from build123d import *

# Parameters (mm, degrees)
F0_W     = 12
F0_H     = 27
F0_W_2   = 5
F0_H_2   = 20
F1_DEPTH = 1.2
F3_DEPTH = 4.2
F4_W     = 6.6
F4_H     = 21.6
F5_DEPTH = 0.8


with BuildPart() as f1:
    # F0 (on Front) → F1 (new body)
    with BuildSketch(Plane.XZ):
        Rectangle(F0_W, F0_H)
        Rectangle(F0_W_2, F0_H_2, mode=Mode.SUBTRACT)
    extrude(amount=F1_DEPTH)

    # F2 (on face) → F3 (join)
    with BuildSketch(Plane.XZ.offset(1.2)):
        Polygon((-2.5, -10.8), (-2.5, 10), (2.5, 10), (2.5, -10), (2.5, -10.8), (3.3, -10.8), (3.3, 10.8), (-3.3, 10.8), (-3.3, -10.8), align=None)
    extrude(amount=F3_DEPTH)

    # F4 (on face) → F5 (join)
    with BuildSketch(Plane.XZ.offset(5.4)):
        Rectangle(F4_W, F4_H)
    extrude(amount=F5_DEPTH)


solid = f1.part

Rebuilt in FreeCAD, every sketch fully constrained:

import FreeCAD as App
import Part
import Sketcher

V = App.Vector
Q = App.Units.Quantity


def add_polygon(sketch, points):
    """Adds a closed chain of lines whose ends are joined by coincident constraints."""
    first, n = sketch.GeometryCount, len(points)
    for a, b in zip(points, points[1:] + points[:1]):
        sketch.addGeometry(Part.LineSegment(App.Vector(*a, 0), App.Vector(*b, 0)), False)
    for i in range(n):
        sketch.addConstraint(Sketcher.Constraint("Coincident", first + i, 2, first + (i + 1) % n, 1))

doc = App.newDocument("Part")
body = doc.addObject("PartDesign::Body", "Body")

# Sketch on XZ plane
sketch1 = body.newObject("Sketcher::SketchObject", "Sketch")
sketch1.AttachmentSupport = (doc.getObject("XZ_Plane"), [""])
sketch1.MapMode = "FlatFace"
add_polygon(sketch1, [(-6, 14), (-6, -14), (6, -14), (6, 14)])  # lines 0-3
add_polygon(sketch1, [(2, -10), (-2, -10), (-2, 10), (2, 10)])  # lines 4-7
sketch1.addConstraint([
    Sketcher.Constraint("Vertical", 0),
    Sketcher.Constraint("Horizontal", 1),
    Sketcher.Constraint("Vertical", 2),
    Sketcher.Constraint("Horizontal", 3),
    Sketcher.Constraint("Horizontal", 4),
    Sketcher.Constraint("Vertical", 5),
    Sketcher.Constraint("Horizontal", 6),
    Sketcher.Constraint("Vertical", 7),
    Sketcher.Constraint("Symmetric", 0, 2, 2, 2, -1, 1),
    Sketcher.Constraint("Symmetric", 4, 2, 6, 2, -1, 1),
    Sketcher.Constraint("DistanceX", 1, 1, 1, 2, Q("12 mm")),
    Sketcher.Constraint("DistanceX", 4, 2, 4, 1, Q("5 mm")),
    Sketcher.Constraint("DistanceY", 0, 2, 0, 1, Q("27 mm")),
    Sketcher.Constraint("DistanceY", 5, 1, 5, 2, Q("20 mm")),
])
pad1 = body.newObject("PartDesign::Pad", "Pad")
pad1.Profile = sketch1
pad1.Length = 1.2

# Sketch on XZ plane
sketch2 = body.newObject("Sketcher::SketchObject", "Sketch001")
sketch2.AttachmentSupport = (doc.getObject("XZ_Plane"), [""])
sketch2.MapMode = "FlatFace"
sketch2.AttachmentOffset = App.Placement(V(0, 0, 1.2), App.Rotation())
add_polygon(sketch2, [(-2.5, -10.8), (-2.5, 10), (2.5, 10), (2.5, -10.8), (3.3, -10.8), (3.3, 10.8), (-3.3, 10.8), (-3.3, -10.8)])  # lines 0-7
sketch2.addConstraint([
    Sketcher.Constraint("Vertical", 0),
    Sketcher.Constraint("Horizontal", 1),
    Sketcher.Constraint("Vertical", 2),
    Sketcher.Constraint("Horizontal", 3),
    Sketcher.Constraint("Vertical", 4),
    Sketcher.Constraint("Horizontal", 5),
    Sketcher.Constraint("Vertical", 6),
    Sketcher.Constraint("Horizontal", 7),
    Sketcher.Constraint("Symmetric", 3, 2, 5, 2, -1, 1),
    Sketcher.Constraint("Symmetric", 2, 2, 7, 2, -2),
    Sketcher.Constraint("DistanceX", 1, 1, 1, 2, Q("5 mm")),
    Sketcher.Constraint("DistanceX", 3, 1, 3, 2, Q("0.8 mm")),
    Sketcher.Constraint("DistanceY", 0, 1, 0, 2, Q("20.8 mm")),
    Sketcher.Constraint("DistanceY", 4, 1, 4, 2, Q("21.6 mm")),
])
pad2 = body.newObject("PartDesign::Pad", "Pad001")
pad2.Profile = sketch2
pad2.Length = 4.2

# Sketch on XZ plane
sketch3 = body.newObject("Sketcher::SketchObject", "Sketch002")
sketch3.AttachmentSupport = (doc.getObject("XZ_Plane"), [""])
sketch3.MapMode = "FlatFace"
sketch3.AttachmentOffset = App.Placement(V(0, 0, 5.4), App.Rotation())
add_polygon(sketch3, [(-3, 11), (-3, -11), (3, -11), (3, 11)])  # lines 0-3
sketch3.addConstraint([
    Sketcher.Constraint("Vertical", 0),
    Sketcher.Constraint("Horizontal", 1),
    Sketcher.Constraint("Vertical", 2),
    Sketcher.Constraint("Horizontal", 3),
    Sketcher.Constraint("Symmetric", 0, 2, 2, 2, -1, 1),
    Sketcher.Constraint("DistanceX", 1, 1, 1, 2, Q("6.6 mm")),
    Sketcher.Constraint("DistanceY", 0, 2, 0, 1, Q("21.6 mm")),
])
pad3 = body.newObject("PartDesign::Pad", "Pad002")
pad3.Profile = sketch3
pad3.Length = 0.8

doc.recompute()
